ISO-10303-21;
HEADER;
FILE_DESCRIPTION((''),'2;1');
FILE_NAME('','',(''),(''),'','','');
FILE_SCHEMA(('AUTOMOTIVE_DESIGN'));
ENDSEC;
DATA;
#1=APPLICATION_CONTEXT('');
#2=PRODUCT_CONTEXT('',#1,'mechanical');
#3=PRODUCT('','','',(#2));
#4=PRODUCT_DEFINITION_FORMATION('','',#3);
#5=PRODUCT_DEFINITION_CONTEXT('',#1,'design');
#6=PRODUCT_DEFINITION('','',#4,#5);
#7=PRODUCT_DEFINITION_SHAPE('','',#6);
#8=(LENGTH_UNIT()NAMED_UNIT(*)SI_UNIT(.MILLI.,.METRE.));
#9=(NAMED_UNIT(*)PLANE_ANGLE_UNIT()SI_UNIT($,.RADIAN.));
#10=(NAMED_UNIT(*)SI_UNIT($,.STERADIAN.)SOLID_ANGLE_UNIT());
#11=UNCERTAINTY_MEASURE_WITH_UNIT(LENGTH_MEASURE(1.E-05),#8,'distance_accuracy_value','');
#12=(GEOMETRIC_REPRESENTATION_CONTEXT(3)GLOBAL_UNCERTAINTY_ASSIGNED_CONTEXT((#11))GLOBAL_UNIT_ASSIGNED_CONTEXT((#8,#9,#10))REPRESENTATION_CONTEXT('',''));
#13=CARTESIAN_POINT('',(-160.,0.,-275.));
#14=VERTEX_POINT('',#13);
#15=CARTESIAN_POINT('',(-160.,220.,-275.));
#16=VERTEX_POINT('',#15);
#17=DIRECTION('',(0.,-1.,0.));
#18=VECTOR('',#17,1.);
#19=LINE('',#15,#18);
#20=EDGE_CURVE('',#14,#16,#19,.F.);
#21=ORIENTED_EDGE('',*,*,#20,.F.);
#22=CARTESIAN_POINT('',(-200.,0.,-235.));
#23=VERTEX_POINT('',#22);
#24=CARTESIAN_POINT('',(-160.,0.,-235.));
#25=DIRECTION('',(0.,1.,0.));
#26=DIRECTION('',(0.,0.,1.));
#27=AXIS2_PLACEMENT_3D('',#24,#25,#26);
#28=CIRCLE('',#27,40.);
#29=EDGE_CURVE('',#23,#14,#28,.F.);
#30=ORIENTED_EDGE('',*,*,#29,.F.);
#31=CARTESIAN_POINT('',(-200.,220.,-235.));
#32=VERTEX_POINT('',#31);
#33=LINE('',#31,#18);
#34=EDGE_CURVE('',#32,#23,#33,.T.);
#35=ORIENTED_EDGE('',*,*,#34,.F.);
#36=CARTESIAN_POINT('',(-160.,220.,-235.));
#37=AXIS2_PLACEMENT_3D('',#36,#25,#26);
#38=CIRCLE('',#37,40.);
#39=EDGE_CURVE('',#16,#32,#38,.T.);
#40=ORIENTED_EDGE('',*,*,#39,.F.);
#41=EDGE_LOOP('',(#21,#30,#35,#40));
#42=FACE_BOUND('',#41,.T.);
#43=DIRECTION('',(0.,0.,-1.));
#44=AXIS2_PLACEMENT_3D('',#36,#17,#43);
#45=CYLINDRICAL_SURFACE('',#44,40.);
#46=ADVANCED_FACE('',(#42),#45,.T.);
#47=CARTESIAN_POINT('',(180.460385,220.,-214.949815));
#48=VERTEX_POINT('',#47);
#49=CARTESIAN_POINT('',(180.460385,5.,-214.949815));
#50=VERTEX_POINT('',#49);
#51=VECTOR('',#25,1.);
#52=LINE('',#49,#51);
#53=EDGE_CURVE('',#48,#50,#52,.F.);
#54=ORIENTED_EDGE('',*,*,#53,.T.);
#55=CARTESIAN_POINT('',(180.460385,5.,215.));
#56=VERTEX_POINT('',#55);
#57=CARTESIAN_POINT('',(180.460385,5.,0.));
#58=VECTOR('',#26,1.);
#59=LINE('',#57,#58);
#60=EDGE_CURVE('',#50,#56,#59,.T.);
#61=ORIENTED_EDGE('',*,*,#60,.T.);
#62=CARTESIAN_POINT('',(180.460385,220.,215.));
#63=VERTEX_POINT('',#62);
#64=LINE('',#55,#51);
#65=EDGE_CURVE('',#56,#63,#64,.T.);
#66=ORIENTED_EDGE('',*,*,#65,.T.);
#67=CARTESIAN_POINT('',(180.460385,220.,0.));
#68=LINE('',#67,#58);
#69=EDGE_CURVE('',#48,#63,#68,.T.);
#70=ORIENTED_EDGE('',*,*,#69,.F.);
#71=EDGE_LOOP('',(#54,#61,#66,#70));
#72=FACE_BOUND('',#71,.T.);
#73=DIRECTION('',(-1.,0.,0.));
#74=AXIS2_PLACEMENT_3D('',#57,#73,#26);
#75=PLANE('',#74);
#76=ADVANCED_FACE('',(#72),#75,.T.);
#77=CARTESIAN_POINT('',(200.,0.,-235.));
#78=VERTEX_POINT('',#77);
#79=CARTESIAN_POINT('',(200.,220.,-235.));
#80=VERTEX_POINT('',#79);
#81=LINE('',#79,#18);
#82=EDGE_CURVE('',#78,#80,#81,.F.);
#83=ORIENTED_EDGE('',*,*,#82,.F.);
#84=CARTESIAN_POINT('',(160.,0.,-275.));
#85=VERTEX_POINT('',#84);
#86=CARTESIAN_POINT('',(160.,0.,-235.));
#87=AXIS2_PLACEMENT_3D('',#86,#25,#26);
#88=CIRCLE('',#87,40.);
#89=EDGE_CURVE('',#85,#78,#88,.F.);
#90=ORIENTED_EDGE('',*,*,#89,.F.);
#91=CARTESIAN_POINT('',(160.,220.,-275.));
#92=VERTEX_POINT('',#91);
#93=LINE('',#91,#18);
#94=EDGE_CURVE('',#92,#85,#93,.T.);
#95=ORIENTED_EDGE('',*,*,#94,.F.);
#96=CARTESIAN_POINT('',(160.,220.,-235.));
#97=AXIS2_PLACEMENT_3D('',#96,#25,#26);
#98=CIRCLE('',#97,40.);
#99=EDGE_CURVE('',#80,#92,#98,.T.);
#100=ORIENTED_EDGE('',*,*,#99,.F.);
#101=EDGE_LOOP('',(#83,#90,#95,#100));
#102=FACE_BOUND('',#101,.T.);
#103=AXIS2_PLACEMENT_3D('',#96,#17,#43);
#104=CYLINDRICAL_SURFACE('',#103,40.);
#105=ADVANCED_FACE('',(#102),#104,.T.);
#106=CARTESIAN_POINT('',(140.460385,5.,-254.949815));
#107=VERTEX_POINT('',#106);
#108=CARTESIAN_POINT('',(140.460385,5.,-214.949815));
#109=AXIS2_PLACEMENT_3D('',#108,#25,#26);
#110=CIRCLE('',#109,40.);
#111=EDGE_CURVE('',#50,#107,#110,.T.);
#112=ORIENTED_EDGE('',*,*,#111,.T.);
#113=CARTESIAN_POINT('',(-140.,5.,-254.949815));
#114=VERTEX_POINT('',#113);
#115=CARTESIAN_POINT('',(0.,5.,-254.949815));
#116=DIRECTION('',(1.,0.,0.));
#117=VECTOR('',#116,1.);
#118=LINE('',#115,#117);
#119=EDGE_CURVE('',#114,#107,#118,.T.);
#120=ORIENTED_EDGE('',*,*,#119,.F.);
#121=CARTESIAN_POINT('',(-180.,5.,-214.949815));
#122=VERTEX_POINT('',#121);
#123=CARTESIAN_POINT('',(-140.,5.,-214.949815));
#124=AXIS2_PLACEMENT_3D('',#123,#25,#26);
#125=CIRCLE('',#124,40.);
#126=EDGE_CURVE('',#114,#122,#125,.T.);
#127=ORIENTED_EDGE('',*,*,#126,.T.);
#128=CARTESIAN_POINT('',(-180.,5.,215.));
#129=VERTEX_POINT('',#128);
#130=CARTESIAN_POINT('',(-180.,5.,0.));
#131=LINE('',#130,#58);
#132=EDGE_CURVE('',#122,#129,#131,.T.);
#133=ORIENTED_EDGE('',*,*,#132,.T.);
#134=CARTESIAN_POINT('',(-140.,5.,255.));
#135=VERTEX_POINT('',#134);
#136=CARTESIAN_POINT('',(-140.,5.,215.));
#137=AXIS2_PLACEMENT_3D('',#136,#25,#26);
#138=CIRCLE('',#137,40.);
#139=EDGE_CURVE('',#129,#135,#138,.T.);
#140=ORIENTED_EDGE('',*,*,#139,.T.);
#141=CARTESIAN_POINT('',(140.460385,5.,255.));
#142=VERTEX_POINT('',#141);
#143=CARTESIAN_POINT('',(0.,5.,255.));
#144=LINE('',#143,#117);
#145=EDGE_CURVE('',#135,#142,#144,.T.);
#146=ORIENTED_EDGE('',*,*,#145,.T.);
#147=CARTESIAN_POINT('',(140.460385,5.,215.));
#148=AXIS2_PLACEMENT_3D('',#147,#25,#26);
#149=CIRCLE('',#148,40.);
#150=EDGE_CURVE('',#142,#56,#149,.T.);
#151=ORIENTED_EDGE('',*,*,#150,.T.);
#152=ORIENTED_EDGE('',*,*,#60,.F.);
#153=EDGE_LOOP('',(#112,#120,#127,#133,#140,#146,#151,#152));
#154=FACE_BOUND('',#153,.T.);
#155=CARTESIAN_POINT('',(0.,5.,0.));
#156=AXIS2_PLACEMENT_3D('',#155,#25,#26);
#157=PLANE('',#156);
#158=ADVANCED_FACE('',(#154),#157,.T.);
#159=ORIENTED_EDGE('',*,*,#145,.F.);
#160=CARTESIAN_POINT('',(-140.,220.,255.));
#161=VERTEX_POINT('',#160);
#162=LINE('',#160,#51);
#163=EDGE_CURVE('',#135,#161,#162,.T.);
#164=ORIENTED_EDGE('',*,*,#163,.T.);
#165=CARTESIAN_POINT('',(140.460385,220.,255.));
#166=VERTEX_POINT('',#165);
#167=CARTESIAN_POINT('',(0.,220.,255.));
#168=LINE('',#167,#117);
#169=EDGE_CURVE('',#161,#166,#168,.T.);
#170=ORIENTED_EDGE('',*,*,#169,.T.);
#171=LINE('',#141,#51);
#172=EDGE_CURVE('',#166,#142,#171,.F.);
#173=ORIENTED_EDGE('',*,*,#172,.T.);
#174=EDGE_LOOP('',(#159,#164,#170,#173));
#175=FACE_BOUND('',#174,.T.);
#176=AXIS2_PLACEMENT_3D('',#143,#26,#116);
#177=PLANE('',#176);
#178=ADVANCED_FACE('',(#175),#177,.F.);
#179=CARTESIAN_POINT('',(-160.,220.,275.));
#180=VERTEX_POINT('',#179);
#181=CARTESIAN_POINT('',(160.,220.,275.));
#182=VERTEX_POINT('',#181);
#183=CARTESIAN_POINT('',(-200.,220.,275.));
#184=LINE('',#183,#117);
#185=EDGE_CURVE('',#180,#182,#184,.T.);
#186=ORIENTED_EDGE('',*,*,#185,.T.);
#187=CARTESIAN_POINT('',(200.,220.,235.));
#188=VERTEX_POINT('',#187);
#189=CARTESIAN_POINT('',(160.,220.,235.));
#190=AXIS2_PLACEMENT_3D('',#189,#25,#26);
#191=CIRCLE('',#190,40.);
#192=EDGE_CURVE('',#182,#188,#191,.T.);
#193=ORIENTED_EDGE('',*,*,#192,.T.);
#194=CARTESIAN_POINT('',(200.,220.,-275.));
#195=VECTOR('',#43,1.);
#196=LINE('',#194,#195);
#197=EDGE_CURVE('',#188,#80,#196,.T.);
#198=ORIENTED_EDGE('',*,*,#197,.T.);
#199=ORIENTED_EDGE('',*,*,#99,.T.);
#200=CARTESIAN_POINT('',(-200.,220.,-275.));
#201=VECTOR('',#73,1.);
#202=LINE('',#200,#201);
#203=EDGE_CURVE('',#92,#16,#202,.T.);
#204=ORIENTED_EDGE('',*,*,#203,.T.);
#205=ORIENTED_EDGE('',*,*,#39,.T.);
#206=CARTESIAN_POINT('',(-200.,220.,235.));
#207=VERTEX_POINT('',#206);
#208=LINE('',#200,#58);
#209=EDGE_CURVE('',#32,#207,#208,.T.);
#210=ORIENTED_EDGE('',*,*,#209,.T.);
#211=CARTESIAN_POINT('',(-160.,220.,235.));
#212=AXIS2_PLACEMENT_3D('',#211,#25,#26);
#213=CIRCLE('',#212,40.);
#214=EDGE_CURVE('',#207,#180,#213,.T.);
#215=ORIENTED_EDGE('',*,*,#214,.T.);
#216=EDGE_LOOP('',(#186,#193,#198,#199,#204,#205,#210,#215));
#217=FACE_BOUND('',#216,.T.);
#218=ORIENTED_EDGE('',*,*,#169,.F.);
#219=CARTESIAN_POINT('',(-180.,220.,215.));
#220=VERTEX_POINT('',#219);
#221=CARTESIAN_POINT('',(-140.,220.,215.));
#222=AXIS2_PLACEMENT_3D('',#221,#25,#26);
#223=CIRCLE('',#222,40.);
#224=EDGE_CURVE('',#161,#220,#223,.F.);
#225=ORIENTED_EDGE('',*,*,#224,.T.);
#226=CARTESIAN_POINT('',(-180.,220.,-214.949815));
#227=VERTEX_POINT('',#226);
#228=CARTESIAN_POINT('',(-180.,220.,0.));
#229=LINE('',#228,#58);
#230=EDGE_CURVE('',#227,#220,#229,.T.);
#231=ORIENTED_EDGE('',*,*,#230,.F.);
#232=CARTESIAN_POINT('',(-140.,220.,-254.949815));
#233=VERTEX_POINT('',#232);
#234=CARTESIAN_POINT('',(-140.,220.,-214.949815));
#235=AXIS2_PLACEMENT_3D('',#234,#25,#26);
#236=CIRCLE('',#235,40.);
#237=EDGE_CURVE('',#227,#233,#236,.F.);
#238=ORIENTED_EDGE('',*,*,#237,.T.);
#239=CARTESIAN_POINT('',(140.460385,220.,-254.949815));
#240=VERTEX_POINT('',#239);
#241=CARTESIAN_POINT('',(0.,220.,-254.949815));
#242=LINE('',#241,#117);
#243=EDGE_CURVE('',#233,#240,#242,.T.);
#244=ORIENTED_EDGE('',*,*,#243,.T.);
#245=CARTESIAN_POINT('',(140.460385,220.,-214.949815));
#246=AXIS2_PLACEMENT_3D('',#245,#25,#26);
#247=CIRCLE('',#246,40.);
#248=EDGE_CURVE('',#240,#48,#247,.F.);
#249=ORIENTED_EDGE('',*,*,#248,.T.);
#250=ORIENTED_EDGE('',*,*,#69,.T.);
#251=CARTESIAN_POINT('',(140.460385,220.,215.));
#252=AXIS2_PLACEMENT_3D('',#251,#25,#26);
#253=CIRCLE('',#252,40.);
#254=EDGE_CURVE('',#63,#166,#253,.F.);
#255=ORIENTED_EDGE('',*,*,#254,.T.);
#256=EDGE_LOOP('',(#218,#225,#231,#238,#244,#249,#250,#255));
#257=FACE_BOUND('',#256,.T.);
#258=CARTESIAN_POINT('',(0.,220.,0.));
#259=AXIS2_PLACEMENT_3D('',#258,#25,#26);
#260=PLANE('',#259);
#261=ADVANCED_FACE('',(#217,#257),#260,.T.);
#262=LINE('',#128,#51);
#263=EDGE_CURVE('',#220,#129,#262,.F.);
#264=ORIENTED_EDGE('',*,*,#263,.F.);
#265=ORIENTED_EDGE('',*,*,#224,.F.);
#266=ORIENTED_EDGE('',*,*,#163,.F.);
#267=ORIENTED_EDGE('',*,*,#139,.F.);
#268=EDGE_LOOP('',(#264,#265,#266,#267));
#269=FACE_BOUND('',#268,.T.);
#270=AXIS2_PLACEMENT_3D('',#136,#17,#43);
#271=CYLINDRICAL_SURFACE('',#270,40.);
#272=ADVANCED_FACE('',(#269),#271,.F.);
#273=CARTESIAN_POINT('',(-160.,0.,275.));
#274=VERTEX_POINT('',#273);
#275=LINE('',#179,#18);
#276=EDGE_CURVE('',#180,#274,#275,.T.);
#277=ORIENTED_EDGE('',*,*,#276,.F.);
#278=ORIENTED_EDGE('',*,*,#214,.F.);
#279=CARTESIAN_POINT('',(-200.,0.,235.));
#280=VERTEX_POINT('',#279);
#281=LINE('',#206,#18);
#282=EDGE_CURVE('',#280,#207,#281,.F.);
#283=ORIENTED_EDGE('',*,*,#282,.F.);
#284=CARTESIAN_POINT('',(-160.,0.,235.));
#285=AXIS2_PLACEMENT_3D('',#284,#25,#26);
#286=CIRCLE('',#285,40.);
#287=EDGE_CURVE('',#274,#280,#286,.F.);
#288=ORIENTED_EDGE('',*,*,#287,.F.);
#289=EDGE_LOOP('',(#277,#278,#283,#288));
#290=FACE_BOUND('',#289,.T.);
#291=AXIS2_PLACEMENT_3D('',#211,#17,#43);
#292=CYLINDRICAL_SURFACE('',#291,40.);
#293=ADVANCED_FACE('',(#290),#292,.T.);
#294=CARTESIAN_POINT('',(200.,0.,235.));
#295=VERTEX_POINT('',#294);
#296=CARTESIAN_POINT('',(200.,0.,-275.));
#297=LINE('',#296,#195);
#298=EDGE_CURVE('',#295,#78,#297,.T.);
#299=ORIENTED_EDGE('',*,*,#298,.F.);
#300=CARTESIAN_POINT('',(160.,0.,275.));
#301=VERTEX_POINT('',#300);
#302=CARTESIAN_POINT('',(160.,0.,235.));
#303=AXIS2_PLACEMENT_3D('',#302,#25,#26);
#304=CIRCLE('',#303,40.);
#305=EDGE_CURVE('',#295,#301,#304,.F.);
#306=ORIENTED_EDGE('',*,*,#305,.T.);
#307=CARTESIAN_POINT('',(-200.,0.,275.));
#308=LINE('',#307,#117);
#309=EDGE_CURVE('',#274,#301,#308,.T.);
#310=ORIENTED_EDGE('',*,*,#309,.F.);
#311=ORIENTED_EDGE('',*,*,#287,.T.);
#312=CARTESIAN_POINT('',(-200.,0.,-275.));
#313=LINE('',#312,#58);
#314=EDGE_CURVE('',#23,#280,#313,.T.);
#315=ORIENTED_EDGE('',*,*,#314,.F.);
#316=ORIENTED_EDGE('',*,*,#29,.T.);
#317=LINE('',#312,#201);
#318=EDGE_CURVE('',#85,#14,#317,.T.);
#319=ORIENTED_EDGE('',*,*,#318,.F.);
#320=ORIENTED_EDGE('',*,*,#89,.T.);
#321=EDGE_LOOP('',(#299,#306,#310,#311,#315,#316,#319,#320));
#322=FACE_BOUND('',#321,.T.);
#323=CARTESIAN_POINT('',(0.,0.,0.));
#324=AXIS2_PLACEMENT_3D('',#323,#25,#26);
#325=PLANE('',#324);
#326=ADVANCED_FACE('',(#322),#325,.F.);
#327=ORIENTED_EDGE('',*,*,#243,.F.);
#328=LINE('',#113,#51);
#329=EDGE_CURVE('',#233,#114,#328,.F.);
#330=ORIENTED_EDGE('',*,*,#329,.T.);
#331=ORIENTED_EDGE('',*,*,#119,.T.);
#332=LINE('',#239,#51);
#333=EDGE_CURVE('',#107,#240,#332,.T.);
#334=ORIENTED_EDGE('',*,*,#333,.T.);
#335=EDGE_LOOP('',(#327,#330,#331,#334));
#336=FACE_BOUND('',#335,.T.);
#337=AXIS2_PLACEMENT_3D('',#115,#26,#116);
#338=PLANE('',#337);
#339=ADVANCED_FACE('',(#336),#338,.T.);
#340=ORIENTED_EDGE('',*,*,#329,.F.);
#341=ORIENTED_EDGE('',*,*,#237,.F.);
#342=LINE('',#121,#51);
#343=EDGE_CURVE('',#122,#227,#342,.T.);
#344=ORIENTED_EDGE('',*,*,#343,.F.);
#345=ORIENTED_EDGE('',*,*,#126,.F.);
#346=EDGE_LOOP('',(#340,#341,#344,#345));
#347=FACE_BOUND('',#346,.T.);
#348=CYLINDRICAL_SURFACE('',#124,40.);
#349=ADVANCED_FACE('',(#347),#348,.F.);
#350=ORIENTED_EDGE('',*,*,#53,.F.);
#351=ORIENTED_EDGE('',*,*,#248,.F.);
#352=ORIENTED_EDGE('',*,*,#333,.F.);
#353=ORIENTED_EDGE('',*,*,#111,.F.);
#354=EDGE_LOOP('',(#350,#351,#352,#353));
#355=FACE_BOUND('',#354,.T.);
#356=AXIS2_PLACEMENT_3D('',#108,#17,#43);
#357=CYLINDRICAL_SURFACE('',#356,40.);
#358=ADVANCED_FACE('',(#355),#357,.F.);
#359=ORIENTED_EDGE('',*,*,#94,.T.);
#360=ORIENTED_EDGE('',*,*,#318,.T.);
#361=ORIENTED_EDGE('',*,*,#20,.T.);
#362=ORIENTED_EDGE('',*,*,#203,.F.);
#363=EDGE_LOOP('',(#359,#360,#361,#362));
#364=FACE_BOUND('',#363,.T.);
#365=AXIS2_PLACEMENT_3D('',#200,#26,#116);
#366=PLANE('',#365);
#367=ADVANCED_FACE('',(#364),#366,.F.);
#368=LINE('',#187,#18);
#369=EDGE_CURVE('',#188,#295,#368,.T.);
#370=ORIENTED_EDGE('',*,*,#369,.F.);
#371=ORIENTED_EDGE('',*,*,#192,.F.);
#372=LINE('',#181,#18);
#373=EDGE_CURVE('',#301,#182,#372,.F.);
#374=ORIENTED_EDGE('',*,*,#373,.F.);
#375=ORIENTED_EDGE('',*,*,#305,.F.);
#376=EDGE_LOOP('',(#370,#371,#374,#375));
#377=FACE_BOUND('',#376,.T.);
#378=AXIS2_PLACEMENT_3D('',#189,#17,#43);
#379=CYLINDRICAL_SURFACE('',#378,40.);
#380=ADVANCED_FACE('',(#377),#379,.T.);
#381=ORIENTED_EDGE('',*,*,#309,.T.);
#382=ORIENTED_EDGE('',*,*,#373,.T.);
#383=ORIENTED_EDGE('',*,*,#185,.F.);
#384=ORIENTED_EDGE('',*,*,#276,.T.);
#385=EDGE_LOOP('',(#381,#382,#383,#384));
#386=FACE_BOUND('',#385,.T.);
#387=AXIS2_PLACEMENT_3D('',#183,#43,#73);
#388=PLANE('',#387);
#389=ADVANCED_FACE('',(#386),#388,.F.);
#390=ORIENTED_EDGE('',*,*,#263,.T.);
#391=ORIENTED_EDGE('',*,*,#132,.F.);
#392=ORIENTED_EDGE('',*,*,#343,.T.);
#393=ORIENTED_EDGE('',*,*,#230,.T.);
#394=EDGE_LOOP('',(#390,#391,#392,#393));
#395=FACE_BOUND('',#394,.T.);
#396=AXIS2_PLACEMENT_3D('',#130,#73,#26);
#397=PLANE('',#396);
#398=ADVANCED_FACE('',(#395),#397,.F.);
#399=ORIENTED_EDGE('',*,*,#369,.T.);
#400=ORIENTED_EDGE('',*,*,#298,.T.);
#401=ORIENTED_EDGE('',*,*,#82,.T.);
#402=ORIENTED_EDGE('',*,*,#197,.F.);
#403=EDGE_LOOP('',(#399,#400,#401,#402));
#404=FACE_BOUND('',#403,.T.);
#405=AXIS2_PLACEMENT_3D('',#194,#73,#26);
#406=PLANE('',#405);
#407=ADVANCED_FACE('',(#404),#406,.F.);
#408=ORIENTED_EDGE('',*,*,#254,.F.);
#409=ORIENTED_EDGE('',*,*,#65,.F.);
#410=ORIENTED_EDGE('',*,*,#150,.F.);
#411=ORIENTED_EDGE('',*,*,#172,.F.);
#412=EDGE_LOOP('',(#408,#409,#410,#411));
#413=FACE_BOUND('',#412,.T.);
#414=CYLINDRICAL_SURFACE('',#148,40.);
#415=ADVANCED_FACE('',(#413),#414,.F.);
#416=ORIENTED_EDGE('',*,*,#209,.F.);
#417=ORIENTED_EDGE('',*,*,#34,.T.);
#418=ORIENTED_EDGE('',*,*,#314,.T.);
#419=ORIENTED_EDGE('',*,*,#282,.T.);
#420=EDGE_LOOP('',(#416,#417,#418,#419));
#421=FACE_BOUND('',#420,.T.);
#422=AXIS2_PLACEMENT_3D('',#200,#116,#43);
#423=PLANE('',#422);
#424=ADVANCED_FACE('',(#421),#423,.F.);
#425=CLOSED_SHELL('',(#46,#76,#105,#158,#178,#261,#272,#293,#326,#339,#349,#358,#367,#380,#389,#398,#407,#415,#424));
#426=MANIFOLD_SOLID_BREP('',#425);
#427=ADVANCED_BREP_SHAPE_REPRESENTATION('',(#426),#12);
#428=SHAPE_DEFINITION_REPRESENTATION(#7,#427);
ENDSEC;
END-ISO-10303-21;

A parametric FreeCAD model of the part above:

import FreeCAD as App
import Part
import Sketcher
from FreeCAD import Vector


def edges_at(feature, points):
    """Names of the edges that pass closest to the given points."""
    edges = feature.Shape.Edges
    near = lambda p: min(range(len(edges)), key=lambda i: edges[i].distToShape(Part.Vertex(*p))[0])
    return sorted({f"Edge{near(p) + 1}" for p in points})


def add_polygon(sketch, points):
    """Adds a closed chain of lines whose ends are joined by coincident constraints."""
    first, n = sketch.GeometryCount, len(points)
    for a, b in zip(points, points[1:] + points[:1]):
        sketch.addGeometry(Part.LineSegment(App.Vector(*a, 0), App.Vector(*b, 0)), False)
    for i in range(n):
        sketch.addConstraint(Sketcher.Constraint("Coincident", first + i, 2, first + (i + 1) % n, 1))

doc = App.newDocument("Part")
body = doc.addObject("PartDesign::Body", "Body")

sketch1 = body.newObject("Sketcher::SketchObject", "Sketch")
sketch1.AttachmentSupport = (doc.getObject("XZ_Plane"), [""])
sketch1.MapMode = "FlatFace"
add_polygon(sketch1, [(-200, -275), (-200, 275), (200, 275), (200, -275)])
sketch1.addConstraint(Sketcher.Constraint("Vertical", 0))
sketch1.addConstraint(Sketcher.Constraint("Horizontal", 1))
sketch1.addConstraint(Sketcher.Constraint("Vertical", 2))
sketch1.addConstraint(Sketcher.Constraint("Horizontal", 3))
sketch1.addConstraint(Sketcher.Constraint("Symmetric", 0, 2, 2, 2, -1, 1))
sketch1.addConstraint(Sketcher.Constraint("DistanceX", 1, 1, 1, 2, 400.0))
sketch1.addConstraint(Sketcher.Constraint("DistanceY", 0, 1, 0, 2, 550.0))
pad1 = body.newObject("PartDesign::Pad", "Pad")
pad1.Profile = sketch1
pad1.Length = 220
pad1.Reversed = True

sketch2 = body.newObject("Sketcher::SketchObject", "Sketch001")
sketch2.AttachmentSupport = (doc.getObject("XZ_Plane"), [""])
sketch2.MapMode = "FlatFace"
sketch2.AttachmentOffset = App.Placement(Vector(0, 0, -220), App.Rotation())
add_polygon(sketch2, [(-180, -255), (-180, 255), (180, 255), (180, -255)])
sketch2.addConstraint(Sketcher.Constraint("Vertical", 0))
sketch2.addConstraint(Sketcher.Constraint("Horizontal", 1))
sketch2.addConstraint(Sketcher.Constraint("Vertical", 2))
sketch2.addConstraint(Sketcher.Constraint("Horizontal", 3))
sketch2.addConstraint(Sketcher.Constraint("DistanceX", 0, 2, -1, 1, 180.0))
sketch2.addConstraint(Sketcher.Constraint("DistanceY", -1, 1, 0, 2, 255.0))
sketch2.addConstraint(Sketcher.Constraint("DistanceX", 1, 1, 1, 2, 360.460385))
sketch2.addConstraint(Sketcher.Constraint("DistanceY", 0, 1, 0, 2, 509.949815))
pocket1 = body.newObject("PartDesign::Pocket", "Pocket")
pocket1.Profile = sketch2
pocket1.Length = 215
pocket1.Reversed = True
doc.recompute()

fillet = body.newObject("PartDesign::Fillet", "Fillet")
fillet.Base = (pocket1, edges_at(pocket1, [
    (200, 110, 275),
    (-200, 110, 275),
    (-200, 110, -275),
    (200, 110, -275),
]))
fillet.Radius = 40
doc.recompute()

fillet2 = body.newObject("PartDesign::Fillet", "Fillet001")
fillet2.Base = (fillet, edges_at(fillet, [
    (180.46, 112.5, -254.95),
    (180.46, 112.5, 255),
    (-180, 112.5, 255),
    (-180, 112.5, -254.95),
]))
fillet2.Radius = 40

doc.recompute()
